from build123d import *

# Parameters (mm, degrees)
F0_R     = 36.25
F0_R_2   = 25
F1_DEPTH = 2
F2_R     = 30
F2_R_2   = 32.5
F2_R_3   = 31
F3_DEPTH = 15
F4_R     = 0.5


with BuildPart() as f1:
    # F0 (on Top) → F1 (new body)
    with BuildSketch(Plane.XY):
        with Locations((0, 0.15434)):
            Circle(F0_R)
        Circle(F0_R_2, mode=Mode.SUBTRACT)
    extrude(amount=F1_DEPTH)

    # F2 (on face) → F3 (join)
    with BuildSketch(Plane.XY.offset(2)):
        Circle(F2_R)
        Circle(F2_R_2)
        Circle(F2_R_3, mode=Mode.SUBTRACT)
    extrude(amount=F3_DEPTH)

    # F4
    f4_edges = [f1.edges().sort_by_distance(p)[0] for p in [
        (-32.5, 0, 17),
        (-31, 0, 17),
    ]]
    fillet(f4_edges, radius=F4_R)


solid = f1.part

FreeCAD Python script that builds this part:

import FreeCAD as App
import Part
import Sketcher
from FreeCAD import Vector
Q = App.Units.Quantity


def edges_at(feature, points):
    """Names of the edges that pass closest to the given points."""
    edges = feature.Shape.Edges
    near = lambda p: min(range(len(edges)), key=lambda i: edges[i].distToShape(Part.Vertex(*p))[0])
    return sorted({f"Edge{near(p) + 1}" for p in points})

doc = App.newDocument("Part")
params = doc.addObject("Spreadsheet::Sheet", "Params")
for row, (alias, value) in enumerate([
    ("sketch1_diameter", "50 mm"),
    ("sketch1_diameter2", "72.5 mm"),
    ("pad1_length", "2 mm"),
    ("sketch2_diameter", "65 mm"),
    ("sketch2_diameter2", "62 mm"),
    ("pad2_length", "15 mm"),
    ("fillet_radius", "0.5 mm"),
], start=1):
    params.set(f"A{row}", alias)
    params.set(f"B{row}", "=" + value)
    params.setAlias(f"B{row}", alias)

body = doc.addObject("PartDesign::Body", "Body")

sketch1 = body.newObject("Sketcher::SketchObject", "Sketch")
sketch1.AttachmentSupport = (doc.getObject("XY_Plane"), [""])
sketch1.MapMode = "FlatFace"
sketch1.addGeometry(Part.Circle(Vector(0, 0, 0), Vector(0, 0, 1), 36), False)
sketch1.addGeometry(Part.Circle(Vector(0, 0, 0), Vector(0, 0, 1), 25), False)
sketch1.addConstraint(Sketcher.Constraint("Coincident", 1, 3, -1, 1))
sketch1.addConstraint(Sketcher.Constraint("PointOnObject", 0, 3, -2))
sketch1.addConstraint(Sketcher.Constraint("Diameter", 1, Q("50 mm")))
sketch1.addConstraint(Sketcher.Constraint("Diameter", 0, Q("72.5 mm")))
sketch1.addConstraint(Sketcher.Constraint("DistanceY", -1, 1, 0, 3, Q("0.15434 mm")))
sketch1.setExpression("Constraints[2]", "Params.sketch1_diameter")
sketch1.setExpression("Constraints[3]", "Params.sketch1_diameter2")
pad1 = body.newObject("PartDesign::Pad", "Pad")
pad1.Profile = sketch1
pad1.setExpression("Length", "Params.pad1_length")

sketch2 = body.newObject("Sketcher::SketchObject", "Sketch001")
sketch2.AttachmentSupport = (doc.getObject("XY_Plane"), [""])
sketch2.MapMode = "FlatFace"
sketch2.AttachmentOffset = App.Placement(Vector(0, 0, 2), App.Rotation())
sketch2.addGeometry(Part.Circle(Vector(0, 0, 0), Vector(0, 0, 1), 32), False)
sketch2.addGeometry(Part.Circle(Vector(0, 0, 0), Vector(0, 0, 1), 31), False)
sketch2.addConstraint(Sketcher.Constraint("Coincident", 0, 3, -1, 1))
sketch2.addConstraint(Sketcher.Constraint("Coincident", 1, 3, -1, 1))
sketch2.addConstraint(Sketcher.Constraint("Diameter", 0, Q("65 mm")))
sketch2.addConstraint(Sketcher.Constraint("Diameter", 1, Q("62 mm")))
sketch2.setExpression("Constraints[2]", "Params.sketch2_diameter")
sketch2.setExpression("Constraints[3]", "Params.sketch2_diameter2")
pad2 = body.newObject("PartDesign::Pad", "Pad001")
pad2.Profile = sketch2
pad2.setExpression("Length", "Params.pad2_length")
doc.recompute()

fillet = body.newObject("PartDesign::Fillet", "Fillet")
fillet.Base = (pad2, edges_at(pad2, [(-32.5, 0, 17), (-31, 0, 17)]))
fillet.setExpression("Radius", "Params.fillet_radius")

doc.recompute()
